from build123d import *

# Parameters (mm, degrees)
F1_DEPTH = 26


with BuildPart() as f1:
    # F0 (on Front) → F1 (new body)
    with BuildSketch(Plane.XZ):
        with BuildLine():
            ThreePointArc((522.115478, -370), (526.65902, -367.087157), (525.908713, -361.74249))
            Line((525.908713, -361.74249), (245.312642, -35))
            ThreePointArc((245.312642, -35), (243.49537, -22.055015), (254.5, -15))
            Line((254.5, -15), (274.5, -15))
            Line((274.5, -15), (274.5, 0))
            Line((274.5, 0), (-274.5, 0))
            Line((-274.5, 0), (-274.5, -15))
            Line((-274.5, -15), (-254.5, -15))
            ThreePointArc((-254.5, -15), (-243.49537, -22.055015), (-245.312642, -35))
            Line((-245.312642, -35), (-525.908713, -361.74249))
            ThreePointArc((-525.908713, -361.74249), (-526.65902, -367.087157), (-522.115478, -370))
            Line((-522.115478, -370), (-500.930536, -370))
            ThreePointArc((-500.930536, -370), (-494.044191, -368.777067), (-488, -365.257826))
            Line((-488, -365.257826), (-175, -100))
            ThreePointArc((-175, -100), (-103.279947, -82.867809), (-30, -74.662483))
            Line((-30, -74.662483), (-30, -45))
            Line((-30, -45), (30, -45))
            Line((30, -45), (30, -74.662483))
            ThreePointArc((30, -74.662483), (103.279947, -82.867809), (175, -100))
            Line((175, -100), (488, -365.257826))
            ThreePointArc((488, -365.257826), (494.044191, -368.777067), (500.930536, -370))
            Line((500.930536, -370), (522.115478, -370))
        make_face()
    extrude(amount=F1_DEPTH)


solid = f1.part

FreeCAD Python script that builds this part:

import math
import FreeCAD as App
import Part
import Sketcher

V = App.Vector

doc = App.newDocument("Part")
body = doc.addObject("PartDesign::Body", "Body")

sketch1 = body.newObject("Sketcher::SketchObject", "Sketch")
sketch1.AttachmentSupport = (doc.getObject("XZ_Plane"), [""])
sketch1.MapMode = "FlatFace"
sketch1.addGeometry(Part.ArcOfCircle(Part.Circle(V(522.115478, -365, 0), V(0, 0, 1), 5), math.radians(-89.999995), math.radians(40.654932)), False)
sketch1.addGeometry(Part.LineSegment(V(525.908713, -361.74249, 0), V(245.312642, -35, 0)), False)
sketch1.addGeometry(Part.ArcOfCircle(Part.Circle(V(254.5, -27.110189, 0), V(0, 0, 1), 12.110189), math.radians(90.000002), math.radians(220.654935)), False)
sketch1.addGeometry(Part.LineSegment(V(254.5, -15, 0), V(274.5, -15, 0)), False)
sketch1.addGeometry(Part.LineSegment(V(274.5, -15, 0), V(274.5, 0, 0)), False)
sketch1.addGeometry(Part.LineSegment(V(274.5, 0, 0), V(-274.5, 0, 0)), False)
sketch1.addGeometry(Part.LineSegment(V(-274.5, 0, 0), V(-274.5, -15, 0)), False)
sketch1.addGeometry(Part.LineSegment(V(-274.5, -15, 0), V(-254.5, -15, 0)), False)
sketch1.addGeometry(Part.ArcOfCircle(Part.Circle(V(-254.5, -27.110189, 0), V(0, 0, 1), 12.110189), math.radians(-40.654935), math.radians(89.999998)), False)
sketch1.addGeometry(Part.LineSegment(V(-245.312642, -35, 0), V(-525.908713, -361.74249, 0)), False)
sketch1.addGeometry(Part.ArcOfCircle(Part.Circle(V(-522.115478, -365, 0), V(0, 0, 1), 5), math.radians(139.345068), math.radians(269.999995)), False)
sketch1.addGeometry(Part.LineSegment(V(-522.115478, -370, 0), V(-500.930536, -370, 0)), False)
sketch1.addGeometry(Part.ArcOfCircle(Part.Circle(V(-500.930538, -349.999994, 0), V(0, 0, 1), 20.000006), math.radians(-89.999995), math.radians(-49.719762)), False)
sketch1.addGeometry(Part.LineSegment(V(-488, -365.257826, 0), V(-175, -100, 0)), False)
sketch1.addGeometry(Part.ArcOfCircle(Part.Circle(V(0.000009, -673.912056, 0), V(0, 0, 1), 600.000043), math.radians(92.865985), math.radians(106.957763)), False)
sketch1.addGeometry(Part.LineSegment(V(-30, -74.662483, 0), V(-30, -45, 0)), False)
sketch1.addGeometry(Part.LineSegment(V(-30, -45, 0), V(30, -45, 0)), False)
sketch1.addGeometry(Part.LineSegment(V(30, -45, 0), V(30, -74.662483, 0)), False)
sketch1.addGeometry(Part.ArcOfCircle(Part.Circle(V(-0.000009, -673.912056, 0), V(0, 0, 1), 600.000043), math.radians(73.042237), math.radians(87.134015)), False)
sketch1.addGeometry(Part.LineSegment(V(175, -100, 0), V(488, -365.257826, 0)), False)
sketch1.addGeometry(Part.ArcOfCircle(Part.Circle(V(500.930538, -349.999994, 0), V(0, 0, 1), 20.000006), math.radians(-130.280238), math.radians(-90.000005)), False)
sketch1.addGeometry(Part.LineSegment(V(500.930536, -370, 0), V(522.115478, -370, 0)), False)
sketch1.addConstraint(Sketcher.Constraint("Coincident", 0, 2, 1, 1))
sketch1.addConstraint(Sketcher.Constraint("Coincident", 1, 2, 2, 2))
sketch1.addConstraint(Sketcher.Constraint("Coincident", 2, 1, 3, 1))
sketch1.addConstraint(Sketcher.Constraint("Coincident", 3, 2, 4, 1))
sketch1.addConstraint(Sketcher.Constraint("Coincident", 4, 2, 5, 1))
sketch1.addConstraint(Sketcher.Constraint("Coincident", 5, 2, 6, 1))
sketch1.addConstraint(Sketcher.Constraint("Coincident", 6, 2, 7, 1))
sketch1.addConstraint(Sketcher.Constraint("Coincident", 7, 2, 8, 2))
sketch1.addConstraint(Sketcher.Constraint("Coincident", 8, 1, 9, 1))
sketch1.addConstraint(Sketcher.Constraint("Coincident", 9, 2, 10, 1))
sketch1.addConstraint(Sketcher.Constraint("Coincident", 10, 2, 11, 1))
sketch1.addConstraint(Sketcher.Constraint("Coincident", 11, 2, 12, 1))
sketch1.addConstraint(Sketcher.Constraint("Coincident", 12, 2, 13, 1))
sketch1.addConstraint(Sketcher.Constraint("Coincident", 13, 2, 14, 2))
sketch1.addConstraint(Sketcher.Constraint("Coincident", 14, 1, 15, 1))
sketch1.addConstraint(Sketcher.Constraint("Coincident", 15, 2, 16, 1))
sketch1.addConstraint(Sketcher.Constraint("Coincident", 16, 2, 17, 1))
sketch1.addConstraint(Sketcher.Constraint("Coincident", 17, 2, 18, 2))
sketch1.addConstraint(Sketcher.Constraint("Coincident", 18, 1, 19, 1))
sketch1.addConstraint(Sketcher.Constraint("Coincident", 19, 2, 20, 1))
sketch1.addConstraint(Sketcher.Constraint("Coincident", 20, 2, 21, 1))
sketch1.addConstraint(Sketcher.Constraint("Coincident", 21, 2, 0, 1))
sketch1.addConstraint(Sketcher.Constraint("Horizontal", 3))
sketch1.addConstraint(Sketcher.Constraint("Vertical", 4))
sketch1.addConstraint(Sketcher.Constraint("Horizontal", 5))
sketch1.addConstraint(Sketcher.Constraint("Vertical", 6))
sketch1.addConstraint(Sketcher.Constraint("Horizontal", 7))
sketch1.addConstraint(Sketcher.Constraint("Horizontal", 11))
sketch1.addConstraint(Sketcher.Constraint("Vertical", 15))
sketch1.addConstraint(Sketcher.Constraint("Horizontal", 16))
sketch1.addConstraint(Sketcher.Constraint("Vertical", 17))
sketch1.addConstraint(Sketcher.Constraint("Horizontal", 21))
sketch1.addConstraint(Sketcher.Constraint("PointOnObject", 4, 2, -1))
sketch1.addConstraint(Sketcher.Constraint("Radius", 0, 5.0))
sketch1.addConstraint(Sketcher.Constraint("Radius", 10, 5.0))
sketch1.addConstraint(Sketcher.Constraint("DistanceX", 3, 1, 3, 2, 20.0))
sketch1.addConstraint(Sketcher.Constraint("DistanceX", 5, 2, 5, 1, 549.0))
sketch1.addConstraint(Sketcher.Constraint("DistanceX", 7, 1, 7, 2, 20.0))
sketch1.addConstraint(Sketcher.Constraint("DistanceX", 16, 1, 16, 2, 60.0))
sketch1.addConstraint(Sketcher.Constraint("DistanceY", 4, 1, 4, 2, 15.0))
sketch1.addConstraint(Sketcher.Constraint("DistanceY", 6, 2, 6, 1, 15.0))
sketch1.addConstraint(Sketcher.Constraint("DistanceY", 0, 3, -1, 1, 365.0))
sketch1.addConstraint(Sketcher.Constraint("DistanceY", 10, 3, -1, 1, 365.0))
sketch1.addConstraint(Sketcher.Constraint("DistanceY", 1, 2, -1, 1, 35.0))
sketch1.addConstraint(Sketcher.Constraint("DistanceY", 8, 1, -1, 1, 35.0))
sketch1.addConstraint(Sketcher.Constraint("DistanceX", 12, 2, -1, 1, 488.0))
sketch1.addConstraint(Sketcher.Constraint("DistanceX", 13, 2, -1, 1, 175.0))
sketch1.addConstraint(Sketcher.Constraint("DistanceY", 13, 2, -1, 1, 100.0))
sketch1.addConstraint(Sketcher.Constraint("DistanceX", 15, 2, -1, 1, 30.0))
sketch1.addConstraint(Sketcher.Constraint("DistanceY", 15, 2, -1, 1, 45.0))
sketch1.addConstraint(Sketcher.Constraint("DistanceY", 18, 1, -1, 1, 100.0))
sketch1.addConstraint(Sketcher.Constraint("DistanceX", -1, 1, 19, 2, 488.0))
sketch1.addConstraint(Sketcher.Constraint("DistanceX", 8, 3, 2, 3, 509.000001))
sketch1.addConstraint(Sketcher.Constraint("DistanceX", 2, 3, 3, 2, 20.0))
sketch1.addConstraint(Sketcher.Constraint("DistanceX", -1, 1, 2, 3, 254.5))
sketch1.addConstraint(Sketcher.Constraint("Radius", 2, 12.110189))
sketch1.addConstraint(Sketcher.Constraint("Radius", 8, 12.110189))
sketch1.addConstraint(Sketcher.Constraint("Radius", 12, 20.000006))
sketch1.addConstraint(Sketcher.Constraint("Radius", 14, 600.000043))
sketch1.addConstraint(Sketcher.Constraint("Radius", 18, 600.000043))
sketch1.addConstraint(Sketcher.Constraint("Radius", 20, 20.000006))
sketch1.addConstraint(Sketcher.Constraint("DistanceY", 0, 2, 2, 3, 334.632301))
sketch1.addConstraint(Sketcher.Constraint("DistanceY", 9, 2, 8, 3, 334.632301))
sketch1.addConstraint(Sketcher.Constraint("DistanceX", 11, 1, 11, 2, 21.184942))
sketch1.addConstraint(Sketcher.Constraint("DistanceX", 21, 1, 21, 2, 21.184942))
sketch1.addConstraint(Sketcher.Constraint("DistanceY", 15, 1, 15, 2, 29.662483))
sketch1.addConstraint(Sketcher.Constraint("DistanceY", 17, 2, 17, 1, 29.662483))
sketch1.addConstraint(Sketcher.Constraint("DistanceX", 10, 2, -1, 1, 522.115478))
sketch1.addConstraint(Sketcher.Constraint("DistanceX", -1, 1, 21, 2, 522.115478))
sketch1.addConstraint(Sketcher.Constraint("DistanceX", 8, 3, 0, 3, 776.615478))
sketch1.addConstraint(Sketcher.Constraint("DistanceX", 10, 3, 2, 3, 776.615478))
sketch1.addConstraint(Sketcher.Constraint("DistanceX", 10, 3, 12, 3, 21.18494))
sketch1.addConstraint(Sketcher.Constraint("DistanceX", 12, 3, 18, 3, 500.930528))
sketch1.addConstraint(Sketcher.Constraint("DistanceX", 20, 3, 0, 3, 21.18494))
pad1 = body.newObject("PartDesign::Pad", "Pad")
pad1.Profile = sketch1
pad1.Length = 26

doc.recompute()
